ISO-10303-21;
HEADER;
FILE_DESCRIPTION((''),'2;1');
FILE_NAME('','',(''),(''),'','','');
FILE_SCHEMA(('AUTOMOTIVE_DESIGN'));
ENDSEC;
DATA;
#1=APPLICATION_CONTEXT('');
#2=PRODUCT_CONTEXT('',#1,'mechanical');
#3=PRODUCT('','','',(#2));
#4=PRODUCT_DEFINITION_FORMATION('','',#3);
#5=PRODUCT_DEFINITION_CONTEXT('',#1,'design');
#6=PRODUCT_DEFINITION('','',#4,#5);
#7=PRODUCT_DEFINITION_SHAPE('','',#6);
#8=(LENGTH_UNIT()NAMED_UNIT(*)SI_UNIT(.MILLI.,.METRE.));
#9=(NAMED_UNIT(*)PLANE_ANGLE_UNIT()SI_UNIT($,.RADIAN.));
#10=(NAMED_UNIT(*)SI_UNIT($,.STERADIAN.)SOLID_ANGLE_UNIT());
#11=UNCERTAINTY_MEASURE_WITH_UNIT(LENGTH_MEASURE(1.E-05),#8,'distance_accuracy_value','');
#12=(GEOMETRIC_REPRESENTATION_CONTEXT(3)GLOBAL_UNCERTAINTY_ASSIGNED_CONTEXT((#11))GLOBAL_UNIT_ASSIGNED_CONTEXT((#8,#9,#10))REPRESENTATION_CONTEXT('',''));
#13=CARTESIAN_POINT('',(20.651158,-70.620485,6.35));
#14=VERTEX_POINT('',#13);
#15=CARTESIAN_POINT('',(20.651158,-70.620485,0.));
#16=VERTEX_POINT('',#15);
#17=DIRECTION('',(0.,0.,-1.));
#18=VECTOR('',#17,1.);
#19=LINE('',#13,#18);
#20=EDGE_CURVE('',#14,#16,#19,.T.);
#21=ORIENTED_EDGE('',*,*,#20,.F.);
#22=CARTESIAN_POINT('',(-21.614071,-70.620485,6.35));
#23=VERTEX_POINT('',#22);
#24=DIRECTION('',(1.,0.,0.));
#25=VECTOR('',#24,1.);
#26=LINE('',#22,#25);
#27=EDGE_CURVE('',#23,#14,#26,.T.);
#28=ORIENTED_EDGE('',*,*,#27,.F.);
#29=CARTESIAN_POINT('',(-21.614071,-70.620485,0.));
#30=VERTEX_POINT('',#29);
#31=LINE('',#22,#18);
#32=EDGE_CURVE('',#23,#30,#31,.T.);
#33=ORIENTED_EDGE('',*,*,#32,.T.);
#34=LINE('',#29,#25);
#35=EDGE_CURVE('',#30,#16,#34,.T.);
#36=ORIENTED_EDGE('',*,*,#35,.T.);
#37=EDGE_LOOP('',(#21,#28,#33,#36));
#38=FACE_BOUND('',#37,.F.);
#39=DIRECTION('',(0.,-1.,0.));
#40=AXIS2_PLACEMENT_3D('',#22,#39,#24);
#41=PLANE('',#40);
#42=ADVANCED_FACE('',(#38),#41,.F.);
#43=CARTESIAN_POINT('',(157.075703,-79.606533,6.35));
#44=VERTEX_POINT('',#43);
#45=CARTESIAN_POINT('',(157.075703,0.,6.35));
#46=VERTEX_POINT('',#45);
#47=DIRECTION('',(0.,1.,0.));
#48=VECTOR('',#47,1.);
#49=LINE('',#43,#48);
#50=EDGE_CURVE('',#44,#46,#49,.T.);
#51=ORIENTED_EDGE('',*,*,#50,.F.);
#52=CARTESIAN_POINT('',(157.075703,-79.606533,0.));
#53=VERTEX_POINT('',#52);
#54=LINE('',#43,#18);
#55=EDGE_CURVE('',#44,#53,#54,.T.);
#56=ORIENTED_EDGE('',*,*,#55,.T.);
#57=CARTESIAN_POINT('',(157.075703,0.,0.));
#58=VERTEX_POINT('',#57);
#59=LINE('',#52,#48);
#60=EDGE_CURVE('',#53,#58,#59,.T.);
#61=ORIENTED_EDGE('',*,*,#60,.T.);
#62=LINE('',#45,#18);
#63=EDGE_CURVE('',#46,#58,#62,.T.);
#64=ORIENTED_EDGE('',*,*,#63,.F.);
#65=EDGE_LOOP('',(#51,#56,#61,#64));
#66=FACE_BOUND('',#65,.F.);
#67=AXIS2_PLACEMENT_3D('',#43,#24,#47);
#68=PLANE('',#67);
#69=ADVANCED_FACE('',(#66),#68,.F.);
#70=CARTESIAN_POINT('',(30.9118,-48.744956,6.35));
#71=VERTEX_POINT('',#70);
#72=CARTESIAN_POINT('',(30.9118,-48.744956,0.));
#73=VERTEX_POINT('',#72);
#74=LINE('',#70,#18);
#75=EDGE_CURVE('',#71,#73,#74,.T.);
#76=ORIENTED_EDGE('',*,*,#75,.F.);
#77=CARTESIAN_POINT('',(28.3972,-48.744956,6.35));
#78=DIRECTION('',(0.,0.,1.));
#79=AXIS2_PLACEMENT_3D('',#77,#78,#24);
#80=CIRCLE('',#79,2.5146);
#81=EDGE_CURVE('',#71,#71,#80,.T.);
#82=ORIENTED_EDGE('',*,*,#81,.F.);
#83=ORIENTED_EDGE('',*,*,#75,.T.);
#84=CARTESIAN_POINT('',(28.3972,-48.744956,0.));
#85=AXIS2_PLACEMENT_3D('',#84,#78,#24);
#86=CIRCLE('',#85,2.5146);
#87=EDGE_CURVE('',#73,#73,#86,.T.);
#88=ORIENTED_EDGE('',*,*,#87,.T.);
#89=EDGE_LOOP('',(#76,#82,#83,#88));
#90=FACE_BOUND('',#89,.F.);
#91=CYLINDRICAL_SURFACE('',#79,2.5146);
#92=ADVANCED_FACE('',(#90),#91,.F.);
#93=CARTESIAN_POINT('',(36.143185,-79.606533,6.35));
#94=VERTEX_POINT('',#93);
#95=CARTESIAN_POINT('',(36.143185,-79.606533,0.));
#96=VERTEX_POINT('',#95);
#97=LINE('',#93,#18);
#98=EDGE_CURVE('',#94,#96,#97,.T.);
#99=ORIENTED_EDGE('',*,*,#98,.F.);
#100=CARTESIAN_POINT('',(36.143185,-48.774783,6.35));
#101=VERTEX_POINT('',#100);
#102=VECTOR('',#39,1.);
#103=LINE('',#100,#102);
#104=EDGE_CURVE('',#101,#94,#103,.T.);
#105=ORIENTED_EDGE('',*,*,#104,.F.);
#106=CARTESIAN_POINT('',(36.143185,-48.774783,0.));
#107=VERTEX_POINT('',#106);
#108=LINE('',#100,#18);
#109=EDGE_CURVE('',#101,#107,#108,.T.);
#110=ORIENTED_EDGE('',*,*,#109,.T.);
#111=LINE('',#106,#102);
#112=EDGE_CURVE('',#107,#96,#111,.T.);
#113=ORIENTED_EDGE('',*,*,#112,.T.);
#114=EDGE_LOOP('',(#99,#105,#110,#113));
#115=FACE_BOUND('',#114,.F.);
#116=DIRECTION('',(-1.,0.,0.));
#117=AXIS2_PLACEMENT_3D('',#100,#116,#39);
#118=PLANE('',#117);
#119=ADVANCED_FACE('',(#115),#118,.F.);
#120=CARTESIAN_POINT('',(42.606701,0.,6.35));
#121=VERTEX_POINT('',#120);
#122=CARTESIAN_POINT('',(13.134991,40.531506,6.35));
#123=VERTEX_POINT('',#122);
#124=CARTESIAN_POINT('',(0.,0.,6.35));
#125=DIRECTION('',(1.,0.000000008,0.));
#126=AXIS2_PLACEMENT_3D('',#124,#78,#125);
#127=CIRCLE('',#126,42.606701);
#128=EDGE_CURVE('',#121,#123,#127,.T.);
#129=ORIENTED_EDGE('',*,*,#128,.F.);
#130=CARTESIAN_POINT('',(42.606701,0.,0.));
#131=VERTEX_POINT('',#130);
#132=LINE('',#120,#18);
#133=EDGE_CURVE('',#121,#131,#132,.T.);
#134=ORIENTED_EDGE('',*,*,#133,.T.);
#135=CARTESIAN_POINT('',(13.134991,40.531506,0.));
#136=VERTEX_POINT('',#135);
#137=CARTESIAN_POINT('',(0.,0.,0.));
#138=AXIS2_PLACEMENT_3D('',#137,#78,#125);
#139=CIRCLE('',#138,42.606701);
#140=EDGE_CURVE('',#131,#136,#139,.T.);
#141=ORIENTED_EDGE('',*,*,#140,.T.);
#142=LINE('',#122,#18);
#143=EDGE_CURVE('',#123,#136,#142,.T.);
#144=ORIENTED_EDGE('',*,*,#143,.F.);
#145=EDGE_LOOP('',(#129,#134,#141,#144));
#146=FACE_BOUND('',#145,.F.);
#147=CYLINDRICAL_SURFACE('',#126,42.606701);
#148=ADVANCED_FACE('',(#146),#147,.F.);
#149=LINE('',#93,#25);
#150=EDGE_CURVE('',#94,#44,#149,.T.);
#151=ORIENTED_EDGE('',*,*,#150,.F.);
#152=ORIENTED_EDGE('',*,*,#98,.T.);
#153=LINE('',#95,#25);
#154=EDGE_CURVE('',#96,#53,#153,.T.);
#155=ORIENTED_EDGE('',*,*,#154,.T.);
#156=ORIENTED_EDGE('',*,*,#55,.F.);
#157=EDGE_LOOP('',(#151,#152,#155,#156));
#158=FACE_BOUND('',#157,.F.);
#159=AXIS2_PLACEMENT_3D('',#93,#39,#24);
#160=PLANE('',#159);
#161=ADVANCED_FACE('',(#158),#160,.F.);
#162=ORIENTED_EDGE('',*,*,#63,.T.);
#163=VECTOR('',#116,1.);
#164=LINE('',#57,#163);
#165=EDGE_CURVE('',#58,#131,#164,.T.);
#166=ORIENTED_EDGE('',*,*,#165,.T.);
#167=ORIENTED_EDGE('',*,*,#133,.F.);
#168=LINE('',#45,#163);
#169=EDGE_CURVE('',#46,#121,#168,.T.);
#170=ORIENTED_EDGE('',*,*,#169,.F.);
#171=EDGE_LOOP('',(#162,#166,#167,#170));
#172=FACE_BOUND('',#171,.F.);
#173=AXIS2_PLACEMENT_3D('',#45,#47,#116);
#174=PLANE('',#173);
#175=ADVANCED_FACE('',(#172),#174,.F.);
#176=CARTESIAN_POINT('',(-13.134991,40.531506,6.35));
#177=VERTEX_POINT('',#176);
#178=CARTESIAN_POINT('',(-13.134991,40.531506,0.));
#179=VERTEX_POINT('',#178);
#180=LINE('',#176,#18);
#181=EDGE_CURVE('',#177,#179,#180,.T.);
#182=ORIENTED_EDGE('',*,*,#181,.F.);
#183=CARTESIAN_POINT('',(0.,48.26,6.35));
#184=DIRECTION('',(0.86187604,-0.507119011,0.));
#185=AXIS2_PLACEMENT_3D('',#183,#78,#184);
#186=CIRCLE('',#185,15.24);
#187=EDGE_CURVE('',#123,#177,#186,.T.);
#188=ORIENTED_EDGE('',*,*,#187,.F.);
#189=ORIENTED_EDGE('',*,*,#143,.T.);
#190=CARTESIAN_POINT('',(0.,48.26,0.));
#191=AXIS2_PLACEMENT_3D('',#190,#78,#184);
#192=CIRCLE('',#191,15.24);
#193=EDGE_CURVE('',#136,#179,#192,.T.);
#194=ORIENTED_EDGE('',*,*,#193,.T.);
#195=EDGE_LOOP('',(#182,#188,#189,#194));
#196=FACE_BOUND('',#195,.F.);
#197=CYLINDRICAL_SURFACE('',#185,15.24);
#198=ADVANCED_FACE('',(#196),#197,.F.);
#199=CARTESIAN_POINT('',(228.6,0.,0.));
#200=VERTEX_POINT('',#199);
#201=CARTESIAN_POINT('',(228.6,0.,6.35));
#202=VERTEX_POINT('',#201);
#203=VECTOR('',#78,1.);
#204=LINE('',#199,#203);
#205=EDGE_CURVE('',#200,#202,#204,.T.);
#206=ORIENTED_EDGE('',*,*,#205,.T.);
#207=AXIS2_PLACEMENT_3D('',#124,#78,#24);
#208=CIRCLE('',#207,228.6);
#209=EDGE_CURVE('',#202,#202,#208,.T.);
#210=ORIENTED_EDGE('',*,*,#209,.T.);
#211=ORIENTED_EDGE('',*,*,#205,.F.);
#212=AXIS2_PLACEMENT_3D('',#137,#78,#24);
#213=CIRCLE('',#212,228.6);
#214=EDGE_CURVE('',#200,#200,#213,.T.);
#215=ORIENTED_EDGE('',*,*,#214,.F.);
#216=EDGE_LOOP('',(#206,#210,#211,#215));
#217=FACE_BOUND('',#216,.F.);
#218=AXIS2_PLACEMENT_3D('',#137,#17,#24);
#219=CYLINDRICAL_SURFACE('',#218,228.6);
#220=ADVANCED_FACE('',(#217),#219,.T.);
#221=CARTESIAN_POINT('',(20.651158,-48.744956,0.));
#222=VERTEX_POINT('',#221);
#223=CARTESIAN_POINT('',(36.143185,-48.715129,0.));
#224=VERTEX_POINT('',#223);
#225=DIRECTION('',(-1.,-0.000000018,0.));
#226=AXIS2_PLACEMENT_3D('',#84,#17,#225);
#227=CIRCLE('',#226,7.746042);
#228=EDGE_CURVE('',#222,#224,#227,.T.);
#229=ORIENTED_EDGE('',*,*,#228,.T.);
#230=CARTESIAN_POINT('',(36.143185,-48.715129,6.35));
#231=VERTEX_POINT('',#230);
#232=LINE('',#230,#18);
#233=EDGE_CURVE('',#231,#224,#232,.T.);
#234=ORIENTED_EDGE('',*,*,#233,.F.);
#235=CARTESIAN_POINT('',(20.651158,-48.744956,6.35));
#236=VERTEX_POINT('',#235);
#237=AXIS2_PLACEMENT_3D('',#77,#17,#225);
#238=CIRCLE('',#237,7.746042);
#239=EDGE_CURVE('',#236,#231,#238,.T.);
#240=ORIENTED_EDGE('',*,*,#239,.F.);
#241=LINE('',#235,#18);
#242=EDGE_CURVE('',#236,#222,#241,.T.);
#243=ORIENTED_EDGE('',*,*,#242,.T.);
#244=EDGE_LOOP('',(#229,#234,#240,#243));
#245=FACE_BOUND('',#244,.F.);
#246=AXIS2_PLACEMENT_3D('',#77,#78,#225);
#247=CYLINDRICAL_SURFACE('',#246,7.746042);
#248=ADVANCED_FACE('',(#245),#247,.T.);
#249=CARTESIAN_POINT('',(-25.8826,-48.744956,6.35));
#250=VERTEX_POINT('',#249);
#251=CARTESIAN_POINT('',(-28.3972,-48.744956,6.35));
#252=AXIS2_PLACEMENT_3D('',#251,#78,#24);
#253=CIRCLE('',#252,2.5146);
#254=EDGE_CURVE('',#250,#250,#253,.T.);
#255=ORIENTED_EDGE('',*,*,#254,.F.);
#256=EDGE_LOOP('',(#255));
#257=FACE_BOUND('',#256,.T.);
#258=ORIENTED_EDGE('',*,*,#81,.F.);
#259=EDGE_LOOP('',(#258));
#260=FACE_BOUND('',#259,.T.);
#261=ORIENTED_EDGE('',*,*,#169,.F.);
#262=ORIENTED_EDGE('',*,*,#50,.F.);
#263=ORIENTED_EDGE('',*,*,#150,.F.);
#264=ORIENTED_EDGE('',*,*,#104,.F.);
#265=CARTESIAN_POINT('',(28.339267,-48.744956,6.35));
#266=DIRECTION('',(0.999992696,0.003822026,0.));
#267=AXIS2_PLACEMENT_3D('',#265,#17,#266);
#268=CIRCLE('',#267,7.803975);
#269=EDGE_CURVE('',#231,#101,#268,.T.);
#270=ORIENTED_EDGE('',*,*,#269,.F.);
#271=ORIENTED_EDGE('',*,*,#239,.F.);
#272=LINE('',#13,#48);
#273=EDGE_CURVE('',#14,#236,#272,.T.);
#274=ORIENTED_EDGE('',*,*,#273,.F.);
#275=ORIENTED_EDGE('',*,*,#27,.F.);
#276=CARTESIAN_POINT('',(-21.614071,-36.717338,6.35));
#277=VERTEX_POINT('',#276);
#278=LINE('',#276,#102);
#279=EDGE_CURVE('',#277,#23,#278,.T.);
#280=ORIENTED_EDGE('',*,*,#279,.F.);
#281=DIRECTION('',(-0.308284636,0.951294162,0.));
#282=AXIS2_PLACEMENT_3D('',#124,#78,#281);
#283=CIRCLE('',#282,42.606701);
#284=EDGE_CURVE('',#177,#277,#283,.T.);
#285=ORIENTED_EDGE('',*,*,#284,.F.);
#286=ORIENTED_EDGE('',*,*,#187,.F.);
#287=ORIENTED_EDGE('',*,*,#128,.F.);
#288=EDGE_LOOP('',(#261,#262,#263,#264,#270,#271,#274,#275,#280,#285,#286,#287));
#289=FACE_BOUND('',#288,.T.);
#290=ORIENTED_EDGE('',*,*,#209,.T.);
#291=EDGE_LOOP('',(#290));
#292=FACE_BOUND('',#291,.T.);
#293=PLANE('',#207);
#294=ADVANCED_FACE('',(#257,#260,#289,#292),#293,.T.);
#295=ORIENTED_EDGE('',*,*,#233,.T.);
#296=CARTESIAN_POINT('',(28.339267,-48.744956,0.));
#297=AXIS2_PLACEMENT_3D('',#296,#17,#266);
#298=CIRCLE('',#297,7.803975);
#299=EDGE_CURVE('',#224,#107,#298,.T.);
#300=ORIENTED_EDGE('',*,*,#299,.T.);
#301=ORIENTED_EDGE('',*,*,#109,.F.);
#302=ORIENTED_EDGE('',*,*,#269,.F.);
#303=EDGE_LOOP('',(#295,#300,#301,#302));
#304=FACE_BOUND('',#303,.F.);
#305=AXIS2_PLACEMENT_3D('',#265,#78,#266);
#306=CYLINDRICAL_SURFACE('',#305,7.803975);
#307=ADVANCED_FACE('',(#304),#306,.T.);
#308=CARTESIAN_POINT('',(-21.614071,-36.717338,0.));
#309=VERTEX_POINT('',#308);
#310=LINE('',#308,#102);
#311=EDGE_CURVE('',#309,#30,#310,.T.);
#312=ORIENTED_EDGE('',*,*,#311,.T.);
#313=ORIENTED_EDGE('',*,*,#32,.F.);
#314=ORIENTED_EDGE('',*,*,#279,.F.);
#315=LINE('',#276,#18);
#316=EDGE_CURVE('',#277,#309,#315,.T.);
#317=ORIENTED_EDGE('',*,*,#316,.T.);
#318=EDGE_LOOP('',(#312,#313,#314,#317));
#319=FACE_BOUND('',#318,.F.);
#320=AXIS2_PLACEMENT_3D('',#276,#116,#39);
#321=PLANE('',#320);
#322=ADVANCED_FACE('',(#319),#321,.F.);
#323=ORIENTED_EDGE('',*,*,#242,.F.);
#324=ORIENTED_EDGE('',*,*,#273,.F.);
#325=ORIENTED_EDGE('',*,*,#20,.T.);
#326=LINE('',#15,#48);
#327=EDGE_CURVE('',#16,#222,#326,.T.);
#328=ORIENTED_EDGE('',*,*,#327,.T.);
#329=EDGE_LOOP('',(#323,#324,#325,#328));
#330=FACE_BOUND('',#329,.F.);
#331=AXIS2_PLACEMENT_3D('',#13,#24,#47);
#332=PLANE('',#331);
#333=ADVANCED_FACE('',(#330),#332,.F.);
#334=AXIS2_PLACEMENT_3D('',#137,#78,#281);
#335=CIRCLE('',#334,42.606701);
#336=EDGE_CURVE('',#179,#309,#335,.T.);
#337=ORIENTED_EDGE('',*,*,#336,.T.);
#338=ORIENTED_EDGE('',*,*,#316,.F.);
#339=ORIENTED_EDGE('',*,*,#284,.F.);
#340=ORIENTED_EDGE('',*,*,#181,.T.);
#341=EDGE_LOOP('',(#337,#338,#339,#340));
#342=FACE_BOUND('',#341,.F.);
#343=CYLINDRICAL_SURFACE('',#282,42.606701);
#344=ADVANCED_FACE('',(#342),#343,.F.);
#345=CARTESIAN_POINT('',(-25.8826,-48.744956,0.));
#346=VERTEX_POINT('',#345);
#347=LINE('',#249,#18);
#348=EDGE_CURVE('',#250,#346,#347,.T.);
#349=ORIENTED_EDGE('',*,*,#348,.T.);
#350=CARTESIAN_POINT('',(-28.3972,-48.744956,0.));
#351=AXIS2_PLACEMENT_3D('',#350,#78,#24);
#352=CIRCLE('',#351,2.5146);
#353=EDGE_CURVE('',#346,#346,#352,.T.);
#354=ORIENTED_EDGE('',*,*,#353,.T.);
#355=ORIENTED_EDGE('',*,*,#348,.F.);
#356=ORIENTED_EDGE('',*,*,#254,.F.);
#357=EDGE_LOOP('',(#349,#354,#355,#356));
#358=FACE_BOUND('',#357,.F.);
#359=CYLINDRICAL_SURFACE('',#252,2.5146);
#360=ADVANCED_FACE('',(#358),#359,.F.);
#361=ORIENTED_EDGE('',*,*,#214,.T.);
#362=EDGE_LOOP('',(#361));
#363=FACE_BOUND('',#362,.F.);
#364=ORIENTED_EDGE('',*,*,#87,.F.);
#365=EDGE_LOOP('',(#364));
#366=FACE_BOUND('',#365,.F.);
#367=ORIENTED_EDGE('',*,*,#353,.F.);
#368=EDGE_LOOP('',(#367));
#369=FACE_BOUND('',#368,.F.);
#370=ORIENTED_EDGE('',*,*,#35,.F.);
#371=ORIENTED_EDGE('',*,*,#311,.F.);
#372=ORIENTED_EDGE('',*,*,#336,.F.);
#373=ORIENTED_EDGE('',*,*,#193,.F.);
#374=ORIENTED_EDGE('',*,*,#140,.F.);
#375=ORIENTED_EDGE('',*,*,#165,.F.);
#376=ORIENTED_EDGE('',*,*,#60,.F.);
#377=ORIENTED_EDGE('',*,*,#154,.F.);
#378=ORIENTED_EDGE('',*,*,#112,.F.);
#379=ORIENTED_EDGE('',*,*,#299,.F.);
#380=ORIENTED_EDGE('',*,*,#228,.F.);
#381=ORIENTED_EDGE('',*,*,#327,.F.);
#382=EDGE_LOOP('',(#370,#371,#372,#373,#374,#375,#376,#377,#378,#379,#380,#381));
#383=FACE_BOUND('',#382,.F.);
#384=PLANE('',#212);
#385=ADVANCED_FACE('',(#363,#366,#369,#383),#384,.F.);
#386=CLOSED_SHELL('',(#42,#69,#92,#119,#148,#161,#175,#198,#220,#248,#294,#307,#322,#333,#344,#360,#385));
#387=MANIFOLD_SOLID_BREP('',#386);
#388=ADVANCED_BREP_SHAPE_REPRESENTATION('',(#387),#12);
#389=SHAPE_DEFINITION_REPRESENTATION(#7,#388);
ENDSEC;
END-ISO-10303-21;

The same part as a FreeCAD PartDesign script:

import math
import FreeCAD as App
import Part
import Sketcher

V = App.Vector
Q = App.Units.Quantity

doc = App.newDocument("Part")
body = doc.addObject("PartDesign::Body", "Body")

# Sketch on XY plane
sketch1 = body.newObject("Sketcher::SketchObject", "Sketch")
sketch1.AttachmentSupport = (doc.getObject("XY_Plane"), [""])
sketch1.MapMode = "FlatFace"
sketch1.addGeometry(Part.Circle(V(0, 0, 0), V(0, 0, 1), 229), False)
sketch1.addConstraint([
    Sketcher.Constraint("Coincident", 0, 3, -1, 1),
    Sketcher.Constraint("Diameter", 0, Q("18 in")),
])
pad1 = body.newObject("PartDesign::Pad", "Pad")
pad1.Profile = sketch1
pad1.Length = Q("0.25 in")

# Sketch on XY plane
sketch2 = body.newObject("Sketcher::SketchObject", "Sketch001")
sketch2.AttachmentSupport = (doc.getObject("XY_Plane"), [""])
sketch2.MapMode = "FlatFace"
sketch2.AttachmentOffset = App.Placement(V(0, 0, 0.25 * 25.4), App.Rotation())
sketch2.addGeometry([
    Part.Circle(V(0, 48.7, 0), V(0, 0, 1), 2.5),
    Part.Circle(V(28.4, -48.7, 0), V(0, 0, 1), 2.5),
    Part.Circle(V(-28.4, -48.7, 0), V(0, 0, 1), 2.5),
], False)
sketch2.addConstraint([
    Sketcher.Constraint("Equal", 0, 1),
    Sketcher.Constraint("Equal", 1, 2),
    Sketcher.Constraint("Symmetric", 1, 3, 2, 3, -2),
    Sketcher.Constraint("PointOnObject", 0, 3, -2),
    Sketcher.Constraint("Diameter", 0, Q("0.198 in")),
    Sketcher.Constraint("DistanceY", -1, 1, 0, 3, Q("1.918 in")),
    Sketcher.Constraint("DistanceX", -1, 1, 1, 3, Q("1.118 in")),
    Sketcher.Constraint("DistanceY", 1, 3, -1, 1, 48.744956),
])
pocket1 = body.newObject("PartDesign::Pocket", "Pocket")
pocket1.Profile = sketch2
pocket1.Type = "ThroughAll"

# Sketch on XY plane
sketch3 = body.newObject("Sketcher::SketchObject", "Sketch002")
sketch3.AttachmentSupport = (doc.getObject("XY_Plane"), [""])
sketch3.MapMode = "FlatFace"
sketch3.AttachmentOffset = App.Placement(V(0, 0, 0.25 * 25.4), App.Rotation())
sketch3.addGeometry([
    Part.LineSegment(V(157.08, 0, 0), V(42.61, 0, 0)),  # 0
    Part.ArcOfCircle(Part.Circle(V(0, 0, 0), V(0, 0, 1), 42.61), math.radians(0), math.radians(72)),  # 1
    Part.ArcOfCircle(Part.Circle(V(0, 48.26, 0), V(0, 0, 1), 15.24), math.radians(-30), math.radians(210)),  # 2
    Part.ArcOfCircle(Part.Circle(V(0, 0, 0), V(0, 0, 1), 42.61), math.radians(108), math.radians(240)),  # 3
    Part.LineSegment(V(-21.61, -36.72, 0), V(-21.61, -70.62, 0)),  # 4
    Part.LineSegment(V(-21.61, -70.62, 0), V(20.65, -70.62, 0)),  # 5
    Part.LineSegment(V(20.65, -70.62, 0), V(20.65, -48.74, 0)),  # 6
    Part.ArcOfCircle(Part.Circle(V(28.4, -48.74, 0), V(0, 0, 1), 7.75), math.radians(0), math.radians(180)),  # 7
    Part.ArcOfCircle(Part.Circle(V(28.34, -48.74, 0), V(0, 0, 1), 7.8), math.radians(-0.22), math.radians(0.22)),  # 8
    Part.LineSegment(V(36.14, -48.77, 0), V(36.14, -79.61, 0)),  # 9
    Part.LineSegment(V(36.14, -79.61, 0), V(157.08, -79.61, 0)),  # 10
    Part.LineSegment(V(157.08, -79.61, 0), V(157.08, 0, 0)),  # 11
], False)
sketch3.addConstraint([
    Sketcher.Constraint("Coincident", 0, 2, 1, 1),
    Sketcher.Constraint("Coincident", 1, 2, 2, 1),
    Sketcher.Constraint("Coincident", 2, 2, 3, 1),
    Sketcher.Constraint("Coincident", 3, 2, 4, 1),
    Sketcher.Constraint("Coincident", 4, 2, 5, 1),
    Sketcher.Constraint("Coincident", 5, 2, 6, 1),
    Sketcher.Constraint("Tangent", 6, 2, 7, 2),
    Sketcher.Constraint("Coincident", 7, 1, 8, 2),
    Sketcher.Constraint("Coincident", 8, 1, 9, 1),
    Sketcher.Constraint("Coincident", 9, 2, 10, 1),
    Sketcher.Constraint("Coincident", 10, 2, 11, 1),
    Sketcher.Constraint("Coincident", 11, 2, 0, 1),
    Sketcher.Constraint("Horizontal", 0),
    Sketcher.Constraint("Vertical", 4),
    Sketcher.Constraint("Horizontal", 5),
    Sketcher.Constraint("Vertical", 6),
    Sketcher.Constraint("Vertical", 9),
    Sketcher.Constraint("Horizontal", 10),
    Sketcher.Constraint("Vertical", 11),
    Sketcher.Constraint("Coincident", 1, 3, -1, 1),
    Sketcher.Constraint("Coincident", 3, 3, -1, 1),
    Sketcher.Constraint("Equal", 1, 3),
    Sketcher.Constraint("PointOnObject", 2, 3, -2),
    Sketcher.Constraint("PointOnObject", 0, 2, -1),
    Sketcher.Constraint("Horizontal", 7, 3, 8, 3),
    Sketcher.Constraint("Vertical", 7, 1, 8, 1),
    Sketcher.Constraint("Radius", 2, Q("0.6 in")),
    Sketcher.Constraint("DistanceY", -1, 1, 2, 3, Q("1.9 in")),
    Sketcher.Constraint("Radius", 1, 42.606701),
    Sketcher.Constraint("DistanceX", -1, 1, 7, 3, Q("1.118 in")),
    Sketcher.Constraint("Radius", 7, 7.746042),
    Sketcher.Constraint("Radius", 8, 7.803975),
    Sketcher.Constraint("DistanceX", 5, 1, 5, 2, 42.265229),
    Sketcher.Constraint("DistanceX", 10, 1, 10, 2, 120.932518),
    Sketcher.Constraint("DistanceY", 6, 1, 6, 2, 21.875529),
    Sketcher.Constraint("DistanceY", 9, 2, 9, 1, 30.83175),
    Sketcher.Constraint("DistanceY", 4, 2, 4, 1, 33.903147),
    Sketcher.Constraint("DistanceY", 11, 1, 11, 2, 79.606533),
])
pocket2 = body.newObject("PartDesign::Pocket", "Pocket001")
pocket2.Profile = sketch3
pocket2.Type = "ThroughAll"

doc.recompute()
